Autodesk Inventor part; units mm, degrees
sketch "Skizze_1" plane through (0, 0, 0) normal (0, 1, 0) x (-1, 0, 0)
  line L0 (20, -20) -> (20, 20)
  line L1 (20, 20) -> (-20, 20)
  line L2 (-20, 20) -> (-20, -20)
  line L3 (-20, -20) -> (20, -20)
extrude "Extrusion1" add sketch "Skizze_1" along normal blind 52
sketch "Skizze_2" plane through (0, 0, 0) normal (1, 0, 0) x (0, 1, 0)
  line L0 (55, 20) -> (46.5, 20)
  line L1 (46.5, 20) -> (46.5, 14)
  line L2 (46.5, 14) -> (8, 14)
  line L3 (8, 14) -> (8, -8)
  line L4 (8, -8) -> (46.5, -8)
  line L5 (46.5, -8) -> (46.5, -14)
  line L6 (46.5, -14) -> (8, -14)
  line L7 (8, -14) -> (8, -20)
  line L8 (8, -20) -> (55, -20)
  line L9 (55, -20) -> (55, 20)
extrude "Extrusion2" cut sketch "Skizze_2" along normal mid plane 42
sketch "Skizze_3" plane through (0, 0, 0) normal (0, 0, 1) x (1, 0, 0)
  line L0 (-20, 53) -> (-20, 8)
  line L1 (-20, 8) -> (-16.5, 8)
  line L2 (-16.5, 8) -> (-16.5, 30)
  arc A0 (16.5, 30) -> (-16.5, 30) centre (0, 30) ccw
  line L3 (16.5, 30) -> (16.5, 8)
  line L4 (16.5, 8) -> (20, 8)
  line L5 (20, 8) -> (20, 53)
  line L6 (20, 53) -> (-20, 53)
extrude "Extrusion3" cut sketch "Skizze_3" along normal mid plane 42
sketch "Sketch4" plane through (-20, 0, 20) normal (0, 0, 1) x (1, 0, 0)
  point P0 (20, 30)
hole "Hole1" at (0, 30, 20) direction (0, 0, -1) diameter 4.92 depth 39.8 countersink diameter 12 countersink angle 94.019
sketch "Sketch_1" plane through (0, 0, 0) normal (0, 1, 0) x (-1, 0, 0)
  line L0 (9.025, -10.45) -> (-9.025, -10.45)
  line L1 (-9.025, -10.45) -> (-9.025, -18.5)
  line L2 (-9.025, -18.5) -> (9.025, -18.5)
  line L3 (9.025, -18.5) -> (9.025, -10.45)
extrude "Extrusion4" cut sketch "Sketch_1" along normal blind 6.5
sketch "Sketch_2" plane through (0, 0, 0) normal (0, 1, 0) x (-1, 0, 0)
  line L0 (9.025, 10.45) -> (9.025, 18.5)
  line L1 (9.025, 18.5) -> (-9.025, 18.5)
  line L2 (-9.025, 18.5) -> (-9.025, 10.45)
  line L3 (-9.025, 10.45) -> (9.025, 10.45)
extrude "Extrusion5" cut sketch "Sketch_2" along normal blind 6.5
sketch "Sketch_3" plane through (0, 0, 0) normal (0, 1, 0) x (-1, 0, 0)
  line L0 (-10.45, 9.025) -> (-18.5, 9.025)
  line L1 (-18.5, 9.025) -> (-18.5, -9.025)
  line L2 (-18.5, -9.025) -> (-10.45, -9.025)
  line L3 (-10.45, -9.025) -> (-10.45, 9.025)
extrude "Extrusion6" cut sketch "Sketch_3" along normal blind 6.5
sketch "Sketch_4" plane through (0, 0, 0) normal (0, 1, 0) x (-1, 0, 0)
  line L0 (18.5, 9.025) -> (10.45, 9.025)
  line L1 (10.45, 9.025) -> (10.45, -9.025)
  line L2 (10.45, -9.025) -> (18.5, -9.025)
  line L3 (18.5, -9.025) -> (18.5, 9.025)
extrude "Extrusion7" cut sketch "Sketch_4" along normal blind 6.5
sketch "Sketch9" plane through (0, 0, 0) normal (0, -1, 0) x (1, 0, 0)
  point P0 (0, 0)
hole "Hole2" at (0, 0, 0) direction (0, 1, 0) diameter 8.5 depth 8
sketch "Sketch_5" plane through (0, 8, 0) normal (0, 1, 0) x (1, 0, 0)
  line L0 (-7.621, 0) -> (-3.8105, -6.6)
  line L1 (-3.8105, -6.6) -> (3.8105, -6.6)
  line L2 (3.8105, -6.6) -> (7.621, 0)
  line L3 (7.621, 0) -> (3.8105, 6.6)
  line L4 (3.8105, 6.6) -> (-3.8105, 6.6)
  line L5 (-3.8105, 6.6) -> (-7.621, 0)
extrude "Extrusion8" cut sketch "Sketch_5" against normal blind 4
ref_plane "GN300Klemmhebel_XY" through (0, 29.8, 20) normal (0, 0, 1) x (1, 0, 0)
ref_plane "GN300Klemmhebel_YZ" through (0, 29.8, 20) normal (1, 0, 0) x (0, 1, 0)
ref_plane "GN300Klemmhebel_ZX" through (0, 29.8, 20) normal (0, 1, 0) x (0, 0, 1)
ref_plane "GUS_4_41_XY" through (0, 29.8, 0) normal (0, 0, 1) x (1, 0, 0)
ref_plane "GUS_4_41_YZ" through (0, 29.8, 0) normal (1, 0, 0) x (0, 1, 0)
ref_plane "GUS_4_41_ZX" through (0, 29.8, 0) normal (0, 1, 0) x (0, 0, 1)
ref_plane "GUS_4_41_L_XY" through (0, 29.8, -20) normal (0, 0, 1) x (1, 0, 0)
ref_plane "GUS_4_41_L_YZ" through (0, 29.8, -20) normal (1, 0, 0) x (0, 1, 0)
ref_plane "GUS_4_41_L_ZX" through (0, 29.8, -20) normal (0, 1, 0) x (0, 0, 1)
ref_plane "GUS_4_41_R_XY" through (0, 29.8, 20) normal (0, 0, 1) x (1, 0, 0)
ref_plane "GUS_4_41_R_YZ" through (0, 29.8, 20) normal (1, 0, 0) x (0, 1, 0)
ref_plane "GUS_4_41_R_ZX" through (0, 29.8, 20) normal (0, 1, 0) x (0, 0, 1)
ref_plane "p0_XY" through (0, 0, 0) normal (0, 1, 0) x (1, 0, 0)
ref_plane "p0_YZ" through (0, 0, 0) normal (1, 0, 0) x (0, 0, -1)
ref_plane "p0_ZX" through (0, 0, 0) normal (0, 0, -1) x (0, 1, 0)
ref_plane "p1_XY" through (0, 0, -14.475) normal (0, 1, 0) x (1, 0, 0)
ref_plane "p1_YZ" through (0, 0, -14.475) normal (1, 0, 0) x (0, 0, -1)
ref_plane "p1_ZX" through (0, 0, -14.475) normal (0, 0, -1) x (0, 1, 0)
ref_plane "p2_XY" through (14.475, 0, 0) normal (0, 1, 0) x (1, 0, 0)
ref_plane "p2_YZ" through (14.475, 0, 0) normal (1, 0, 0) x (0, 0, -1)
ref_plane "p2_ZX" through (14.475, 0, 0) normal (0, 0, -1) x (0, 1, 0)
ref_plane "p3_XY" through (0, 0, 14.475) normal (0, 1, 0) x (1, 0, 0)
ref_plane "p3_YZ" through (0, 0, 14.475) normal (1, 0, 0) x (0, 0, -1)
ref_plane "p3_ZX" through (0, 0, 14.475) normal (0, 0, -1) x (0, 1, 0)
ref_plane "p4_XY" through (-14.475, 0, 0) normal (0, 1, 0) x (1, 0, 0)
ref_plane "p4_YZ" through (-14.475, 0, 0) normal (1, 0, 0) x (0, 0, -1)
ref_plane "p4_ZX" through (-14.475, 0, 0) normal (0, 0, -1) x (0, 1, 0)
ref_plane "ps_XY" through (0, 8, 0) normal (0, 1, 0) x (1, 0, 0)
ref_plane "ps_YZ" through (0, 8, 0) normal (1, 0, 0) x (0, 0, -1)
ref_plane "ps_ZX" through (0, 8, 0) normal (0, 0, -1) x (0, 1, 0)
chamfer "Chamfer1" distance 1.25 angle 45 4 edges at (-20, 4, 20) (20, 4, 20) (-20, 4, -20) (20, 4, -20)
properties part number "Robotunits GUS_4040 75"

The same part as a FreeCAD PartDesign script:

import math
import FreeCAD as App
import Part
import Sketcher
Q = App.Units.Quantity


def edges_at(feature, points):
    """Names of the edges that pass closest to the given points."""
    edges = feature.Shape.Edges
    near = lambda p: min(range(len(edges)), key=lambda i: edges[i].distToShape(Part.Vertex(*p))[0])
    return sorted({f"Edge{near(p) + 1}" for p in points})


def add_polygon(sketch, points):
    """Adds a closed chain of lines whose ends are joined by coincident constraints."""
    first, n = sketch.GeometryCount, len(points)
    for a, b in zip(points, points[1:] + points[:1]):
        sketch.addGeometry(Part.LineSegment(App.Vector(*a, 0), App.Vector(*b, 0)), False)
    for i in range(n):
        sketch.addConstraint(Sketcher.Constraint("Coincident", first + i, 2, first + (i + 1) % n, 1))

doc = App.newDocument("Part")
params = doc.addObject("Spreadsheet::Sheet", "Params")
for row, (alias, value) in enumerate([
    ("sketch1_width", "40 mm"),
    ("pad1_length", "52 mm"),
    ("sketch2_width", "47 mm"),
    ("sketch2_height", "40 mm"),
    ("sketch2_height2", "6 mm"),
    ("sketch2_width2", "8.5 mm"),
    ("pocket1_length", "42 mm"),
    ("sketch3_radius", "16.5 mm"),
    ("sketch3_width", "40 mm"),
    ("sketch3_height", "45 mm"),
    ("sketch3_height2", "22 mm"),
    ("pocket2_length", "42 mm"),
    ("sketch4_diameter", "4.92 mm"),
    ("hole_diameter", "4.92 mm"),
    ("hole_depth", "39.8 mm"),
    ("hole_csink_diameter", "12 mm"),
    ("sketch5_width", "18.05 mm"),
    ("sketch5_height", "8.05 mm"),
    ("pocket3_length", "6.5 mm"),
    ("sketch6_width", "18.05 mm"),
    ("sketch6_height", "8.05 mm"),
    ("pocket4_length", "6.5 mm"),
    ("sketch7_width", "8.05 mm"),
    ("sketch7_height", "18.05 mm"),
    ("pocket5_length", "6.5 mm"),
    ("sketch8_width", "8.05 mm"),
    ("sketch8_height", "18.05 mm"),
    ("pocket6_length", "6.5 mm"),
    ("sketch9_diameter", "8.5 mm"),
    ("hole2_diameter", "8.5 mm"),
    ("hole2_depth", "8 mm"),
    ("pocket7_length", "4 mm"),
    ("chamfer_size", "1.25 mm"),
], start=1):
    params.set(f"A{row}", alias)
    params.set(f"B{row}", "=" + value)
    params.setAlias(f"B{row}", alias)

body = doc.addObject("PartDesign::Body", "Body")

# Sketch on XZ plane
sketch1 = body.newObject("Sketcher::SketchObject", "Sketch")
sketch1.AttachmentSupport = (doc.getObject("XZ_Plane"), [""])
sketch1.MapMode = "FlatFace"
add_polygon(sketch1, [(20, -20), (-20, -20), (-20, 20), (20, 20)])  # lines 0-3
sketch1.addConstraint([
    Sketcher.Constraint("Horizontal", 0),
    Sketcher.Constraint("Vertical", 1),
    Sketcher.Constraint("Horizontal", 2),
    Sketcher.Constraint("Vertical", 3),
    Sketcher.Constraint("Symmetric", 0, 2, 2, 2, -1, 1),
    Sketcher.Constraint("Equal", 2, 1),
    Sketcher.Constraint("DistanceX", 0, 2, 0, 1, 40.0),
])
sketch1.setExpression("Constraints[10]", "Params.sketch1_width")
pad1 = body.newObject("PartDesign::Pad", "Pad")
pad1.Profile = sketch1
pad1.setExpression("Length", "Params.pad1_length")
pad1.Reversed = True

# Sketch on YZ plane
sketch2 = body.newObject("Sketcher::SketchObject", "Sketch001")
sketch2.AttachmentSupport = (doc.getObject("YZ_Plane"), [""])
sketch2.MapMode = "FlatFace"
add_polygon(sketch2, [(55, -20), (55, 20), (46, 20), (46, 14), (8, 14), (8, -8), (46, -8), (46, -14), (8, -14), (8, -20)])  # lines 0-9
sketch2.addConstraint([
    Sketcher.Constraint("Vertical", 0),
    Sketcher.Constraint("Horizontal", 1),
    Sketcher.Constraint("Vertical", 2),
    Sketcher.Constraint("Horizontal", 3),
    Sketcher.Constraint("Vertical", 4),
    Sketcher.Constraint("Horizontal", 5),
    Sketcher.Constraint("Vertical", 6),
    Sketcher.Constraint("Horizontal", 7),
    Sketcher.Constraint("Vertical", 8),
    Sketcher.Constraint("Horizontal", 9),
    Sketcher.Constraint("Symmetric", 2, 2, 6, 2, -1),
    Sketcher.Constraint("Vertical", 4, 2, 7, 2),
    Sketcher.Constraint("Equal", 2, 6),
    Sketcher.Constraint("Equal", 6, 8),
    Sketcher.Constraint("DistanceX", 9, 1, 9, 2, 47.0),
    Sketcher.Constraint("DistanceY", 0, 1, 0, 2, 40.0),
    Sketcher.Constraint("DistanceY", 2, 2, 2, 1, 6.0),
    Sketcher.Constraint("DistanceX", 1, 2, 1, 1, 8.5),
    Sketcher.Constraint("DistanceX", -1, 1, 0, 2, 55.0),
])
sketch2.setExpression("Constraints[24]", "Params.sketch2_width")
sketch2.setExpression("Constraints[25]", "Params.sketch2_height")
sketch2.setExpression("Constraints[26]", "Params.sketch2_height2")
sketch2.setExpression("Constraints[27]", "Params.sketch2_width2")
pocket1 = body.newObject("PartDesign::Pocket", "Pocket")
pocket1.Profile = sketch2
pocket1.setExpression("Length", "Params.pocket1_length")
pocket1.Midplane = True

# Sketch on XY plane
sketch3 = body.newObject("Sketcher::SketchObject", "Sketch002")
sketch3.AttachmentSupport = (doc.getObject("XY_Plane"), [""])
sketch3.MapMode = "FlatFace"
sketch3.addGeometry([
    Part.LineSegment(App.Vector(20, 53, 0), App.Vector(-20, 53, 0)),  # 0
    Part.LineSegment(App.Vector(-20, 53, 0), App.Vector(-20, 8, 0)),  # 1
    Part.LineSegment(App.Vector(-20, 8, 0), App.Vector(-16.5, 8, 0)),  # 2
    Part.LineSegment(App.Vector(-16.5, 8, 0), App.Vector(-16.5, 30, 0)),  # 3
    Part.ArcOfCircle(Part.Circle(App.Vector(0, 30, 0), App.Vector(0, 0, 1), 16.5), math.radians(0), math.radians(180)),  # 4
    Part.LineSegment(App.Vector(16.5, 30, 0), App.Vector(16.5, 8, 0)),  # 5
    Part.LineSegment(App.Vector(16.5, 8, 0), App.Vector(20, 8, 0)),  # 6
    Part.LineSegment(App.Vector(20, 8, 0), App.Vector(20, 53, 0)),  # 7
], False)
sketch3.addConstraint([
    Sketcher.Constraint("Coincident", 0, 2, 1, 1),
    Sketcher.Constraint("Coincident", 1, 2, 2, 1),
    Sketcher.Constraint("Coincident", 2, 2, 3, 1),
    Sketcher.Constraint("Tangent", 3, 2, 4, 2),
    Sketcher.Constraint("Tangent", 4, 1, 5, 1),
    Sketcher.Constraint("Coincident", 5, 2, 6, 1),
    Sketcher.Constraint("Coincident", 6, 2, 7, 1),
    Sketcher.Constraint("Coincident", 7, 2, 0, 1),
    Sketcher.Constraint("Horizontal", 0),
    Sketcher.Constraint("Vertical", 1),
    Sketcher.Constraint("Horizontal", 2),
    Sketcher.Constraint("Vertical", 3),
    Sketcher.Constraint("Vertical", 5),
    Sketcher.Constraint("Horizontal", 6),
    Sketcher.Constraint("Vertical", 7),
    Sketcher.Constraint("Symmetric", 2, 2, 5, 2, -2),
    Sketcher.Constraint("Equal", 2, 6),
    Sketcher.Constraint("Radius", 4, 16.5),
    Sketcher.Constraint("DistanceX", 0, 2, 0, 1, 40.0),
    Sketcher.Constraint("DistanceY", 1, 2, 1, 1, 45.0),
    Sketcher.Constraint("DistanceY", 3, 1, 3, 2, 22.0),
    Sketcher.Constraint("DistanceY", -1, 1, 4, 3, 30.0),
])
sketch3.setExpression("Constraints[17]", "Params.sketch3_radius")
sketch3.setExpression("Constraints[18]", "Params.sketch3_width")
sketch3.setExpression("Constraints[19]", "Params.sketch3_height")
sketch3.setExpression("Constraints[20]", "Params.sketch3_height2")
pocket2 = body.newObject("PartDesign::Pocket", "Pocket001")
pocket2.Profile = sketch3
pocket2.setExpression("Length", "Params.pocket2_length")
pocket2.Midplane = True

# Sketch on XY plane
sketch4 = body.newObject("Sketcher::SketchObject", "Sketch003")
sketch4.AttachmentSupport = (doc.getObject("XY_Plane"), [""])
sketch4.MapMode = "FlatFace"
sketch4.AttachmentOffset = App.Placement(App.Vector(0, 0, 20), App.Rotation())
sketch4.addGeometry(Part.Circle(App.Vector(0, 30, 0), App.Vector(0, 0, 1), 2.5), False)
sketch4.addConstraint([
    Sketcher.Constraint("PointOnObject", 0, 3, -2),
    Sketcher.Constraint("Diameter", 0, 4.92),
    Sketcher.Constraint("DistanceY", -1, 1, 0, 3, 30.0),
])
sketch4.setExpression("Constraints[1]", "Params.sketch4_diameter")
doc.recompute()
hole = body.newObject("PartDesign::Hole", "Hole")
hole.Profile = sketch4
hole.ThreadType = "None"
hole.setExpression("Diameter", "Params.hole_diameter")
hole.DepthType = "Dimension"
hole.setExpression("Depth", "Params.hole_depth")
hole.DrillPoint = "Flat"
hole.HoleCutType = "Countersink"
hole.setExpression("HoleCutDiameter", "Params.hole_csink_diameter")
hole.HoleCutCountersinkAngle = 94.019

# Sketch on XZ plane
sketch5 = body.newObject("Sketcher::SketchObject", "Sketch004")
sketch5.AttachmentSupport = (doc.getObject("XZ_Plane"), [""])
sketch5.MapMode = "FlatFace"
add_polygon(sketch5, [(-9, -18), (-9, -10), (9, -10), (9, -18)])  # lines 0-3
sketch5.addConstraint([
    Sketcher.Constraint("Vertical", 0),
    Sketcher.Constraint("Horizontal", 1),
    Sketcher.Constraint("Vertical", 2),
    Sketcher.Constraint("Horizontal", 3),
    Sketcher.Constraint("DistanceX", 1, 1, 1, 2, 18.05),
    Sketcher.Constraint("DistanceY", 0, 1, 0, 2, 8.05),
    Sketcher.Constraint("DistanceY", 2, 2, -1, 1, 18.5),
    Sketcher.Constraint("DistanceX", 0, 2, -1, 1, 9.025),
])
sketch5.setExpression("Constraints[8]", "Params.sketch5_width")
sketch5.setExpression("Constraints[9]", "Params.sketch5_height")
pocket3 = body.newObject("PartDesign::Pocket", "Pocket002")
pocket3.Profile = sketch5
pocket3.setExpression("Length", "Params.pocket3_length")

# Sketch on XZ plane
sketch6 = body.newObject("Sketcher::SketchObject", "Sketch005")
sketch6.AttachmentSupport = (doc.getObject("XZ_Plane"), [""])
sketch6.MapMode = "FlatFace"
add_polygon(sketch6, [(9, 10), (-9, 10), (-9, 18), (9, 18)])  # lines 0-3
sketch6.addConstraint([
    Sketcher.Constraint("Horizontal", 0),
    Sketcher.Constraint("Vertical", 1),
    Sketcher.Constraint("Horizontal", 2),
    Sketcher.Constraint("Vertical", 3),
    Sketcher.Constraint("DistanceX", 0, 2, 0, 1, 18.05),
    Sketcher.Constraint("DistanceY", 1, 1, 1, 2, 8.05),
    Sketcher.Constraint("DistanceY", -1, 1, 1, 2, 18.5),
    Sketcher.Constraint("DistanceX", 0, 2, -1, 1, 9.025),
])
sketch6.setExpression("Constraints[8]", "Params.sketch6_width")
sketch6.setExpression("Constraints[9]", "Params.sketch6_height")
pocket4 = body.newObject("PartDesign::Pocket", "Pocket003")
pocket4.Profile = sketch6
pocket4.setExpression("Length", "Params.pocket4_length")

# Sketch on XZ plane
sketch7 = body.newObject("Sketcher::SketchObject", "Sketch006")
sketch7.AttachmentSupport = (doc.getObject("XZ_Plane"), [""])
sketch7.MapMode = "FlatFace"
add_polygon(sketch7, [(10, -9), (10, 9), (18, 9), (18, -9)])  # lines 0-3
sketch7.addConstraint([
    Sketcher.Constraint("Vertical", 0),
    Sketcher.Constraint("Horizontal", 1),
    Sketcher.Constraint("Vertical", 2),
    Sketcher.Constraint("Horizontal", 3),
    Sketcher.Constraint("DistanceX", 1, 1, 1, 2, 8.05),
    Sketcher.Constraint("DistanceY", 0, 1, 0, 2, 18.05),
    Sketcher.Constraint("DistanceX", -1, 1, 1, 2, 18.5),
    Sketcher.Constraint("DistanceY", -1, 1, 0, 2, 9.025),
])
sketch7.setExpression("Constraints[8]", "Params.sketch7_width")
sketch7.setExpression("Constraints[9]", "Params.sketch7_height")
pocket5 = body.newObject("PartDesign::Pocket", "Pocket004")
pocket5.Profile = sketch7
pocket5.setExpression("Length", "Params.pocket5_length")

# Sketch on XZ plane
sketch8 = body.newObject("Sketcher::SketchObject", "Sketch007")
sketch8.AttachmentSupport = (doc.getObject("XZ_Plane"), [""])
sketch8.MapMode = "FlatFace"
add_polygon(sketch8, [(-18, -9), (-18, 9), (-10, 9), (-10, -9)])  # lines 0-3
sketch8.addConstraint([
    Sketcher.Constraint("Vertical", 0),
    Sketcher.Constraint("Horizontal", 1),
    Sketcher.Constraint("Vertical", 2),
    Sketcher.Constraint("Horizontal", 3),
    Sketcher.Constraint("DistanceX", 1, 1, 1, 2, 8.05),
    Sketcher.Constraint("DistanceY", 0, 1, 0, 2, 18.05),
    Sketcher.Constraint("DistanceX", 0, 2, -1, 1, 18.5),
    Sketcher.Constraint("DistanceY", -1, 1, 0, 2, 9.025),
])
sketch8.setExpression("Constraints[8]", "Params.sketch8_width")
sketch8.setExpression("Constraints[9]", "Params.sketch8_height")
pocket6 = body.newObject("PartDesign::Pocket", "Pocket005")
pocket6.Profile = sketch8
pocket6.setExpression("Length", "Params.pocket6_length")

# Sketch on XZ plane
sketch9 = body.newObject("Sketcher::SketchObject", "Sketch008")
sketch9.AttachmentSupport = (doc.getObject("XZ_Plane"), [""])
sketch9.MapMode = "FlatFace"
sketch9.addGeometry(Part.Circle(App.Vector(0, 0, 0), App.Vector(0, 0, 1), 4.2), False)
sketch9.addConstraint([
    Sketcher.Constraint("Coincident", 0, 3, -1, 1),
    Sketcher.Constraint("Diameter", 0, 8.5),
])
sketch9.setExpression("Constraints[1]", "Params.sketch9_diameter")
doc.recompute()
hole2 = body.newObject("PartDesign::Hole", "Hole001")
hole2.Profile = sketch9
hole2.ThreadType = "None"
hole2.setExpression("Diameter", "Params.hole2_diameter")
hole2.DepthType = "Dimension"
hole2.setExpression("Depth", "Params.hole2_depth")
hole2.DrillPoint = "Flat"

# Sketch on XZ plane
sketch10 = body.newObject("Sketcher::SketchObject", "Sketch009")
sketch10.AttachmentSupport = (doc.getObject("XZ_Plane"), [""])
sketch10.MapMode = "FlatFace"
sketch10.AttachmentOffset = App.Placement(App.Vector(0, 0, -8), App.Rotation())
add_polygon(sketch10, [(-4, -7), (-8, 0), (-4, 7), (4, 7), (8, 0), (4, -7)])  # lines 0-5
sketch10.addConstraint([
    Sketcher.Constraint("Horizontal", 2),
    Sketcher.Constraint("Horizontal", 5),
    Sketcher.Constraint("Symmetric", 0, 2, 3, 2, -1, 1),
    Sketcher.Constraint("Symmetric", 1, 2, 4, 2, -1, 1),
    Sketcher.Constraint("PointOnObject", 0, 2, -1),
    Sketcher.Constraint("Parallel", 0, 3),
    Sketcher.Constraint("Vertical", 2, 2, 4, 2),
    Sketcher.Constraint("Angle", 0, Q("120 deg")),
    Sketcher.Constraint("DistanceY", -1, 1, 1, 2, 6.6),
    Sketcher.Constraint("DistanceX", 2, 1, 2, 2, 7.621),
])
pocket7 = body.newObject("PartDesign::Pocket", "Pocket006")
pocket7.Profile = sketch10
pocket7.setExpression("Length", "Params.pocket7_length")
pocket7.Reversed = True
doc.recompute()

chamfer = body.newObject("PartDesign::Chamfer", "Chamfer")
chamfer.Base = (pocket7, edges_at(pocket7, [
    (-20, 4, 20),
    (20, 4, 20),
    (-20, 4, -20),
    (20, 4, -20),
]))
chamfer.setExpression("Size", "Params.chamfer_size")

doc.recompute()
